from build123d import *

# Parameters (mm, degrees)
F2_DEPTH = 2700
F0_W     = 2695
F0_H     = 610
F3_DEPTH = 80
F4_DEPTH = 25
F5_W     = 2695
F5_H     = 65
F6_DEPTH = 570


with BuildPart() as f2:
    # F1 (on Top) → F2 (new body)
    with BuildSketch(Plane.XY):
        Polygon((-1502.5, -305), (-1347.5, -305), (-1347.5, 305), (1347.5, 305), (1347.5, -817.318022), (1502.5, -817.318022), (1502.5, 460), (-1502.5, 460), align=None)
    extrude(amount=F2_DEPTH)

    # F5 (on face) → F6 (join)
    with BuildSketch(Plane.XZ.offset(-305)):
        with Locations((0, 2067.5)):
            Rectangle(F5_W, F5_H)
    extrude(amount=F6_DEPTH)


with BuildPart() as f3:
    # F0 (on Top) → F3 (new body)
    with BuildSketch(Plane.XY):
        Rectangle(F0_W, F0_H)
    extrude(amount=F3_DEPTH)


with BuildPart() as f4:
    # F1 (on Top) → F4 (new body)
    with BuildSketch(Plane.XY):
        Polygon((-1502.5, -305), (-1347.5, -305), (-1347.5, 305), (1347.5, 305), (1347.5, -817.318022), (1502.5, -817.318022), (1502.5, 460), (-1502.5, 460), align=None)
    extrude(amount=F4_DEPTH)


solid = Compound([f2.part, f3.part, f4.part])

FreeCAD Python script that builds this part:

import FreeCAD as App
import Part
import Sketcher

V = App.Vector


def add_polygon(sketch, points):
    """Adds a closed chain of lines whose ends are joined by coincident constraints."""
    first, n = sketch.GeometryCount, len(points)
    for a, b in zip(points, points[1:] + points[:1]):
        sketch.addGeometry(Part.LineSegment(App.Vector(*a, 0), App.Vector(*b, 0)), False)
    for i in range(n):
        sketch.addConstraint(Sketcher.Constraint("Coincident", first + i, 2, first + (i + 1) % n, 1))

doc = App.newDocument("Part")
body = doc.addObject("PartDesign::Body", "Body")

sketch1 = body.newObject("Sketcher::SketchObject", "Sketch")
sketch1.AttachmentSupport = (doc.getObject("XY_Plane"), [""])
sketch1.MapMode = "FlatFace"
add_polygon(sketch1, [(-1502, -305), (-1348, -305), (-1348, 305), (1348, 305), (1348, -817), (1502, -817), (1502, 460), (-1502, 460)])
sketch1.addConstraint(Sketcher.Constraint("Horizontal", 0))
sketch1.addConstraint(Sketcher.Constraint("Vertical", 1))
sketch1.addConstraint(Sketcher.Constraint("Horizontal", 2))
sketch1.addConstraint(Sketcher.Constraint("Vertical", 3))
sketch1.addConstraint(Sketcher.Constraint("Horizontal", 4))
sketch1.addConstraint(Sketcher.Constraint("Vertical", 5))
sketch1.addConstraint(Sketcher.Constraint("Horizontal", 6))
sketch1.addConstraint(Sketcher.Constraint("Vertical", 7))
sketch1.addConstraint(Sketcher.Constraint("Symmetric", 0, 2, 2, 2, -1, 1))
sketch1.addConstraint(Sketcher.Constraint("Equal", 0, 4))
sketch1.addConstraint(Sketcher.Constraint("DistanceX", 0, 1, 0, 2, 155.0))
sketch1.addConstraint(Sketcher.Constraint("DistanceX", 2, 1, 2, 2, 2695.0))
sketch1.addConstraint(Sketcher.Constraint("DistanceY", 1, 1, 1, 2, 610.0))
sketch1.addConstraint(Sketcher.Constraint("DistanceY", 7, 2, 7, 1, 765.0))
sketch1.addConstraint(Sketcher.Constraint("DistanceY", 3, 2, 3, 1, 1122.318022))
pad1 = body.newObject("PartDesign::Pad", "Pad")
pad1.Profile = sketch1
pad1.Length = 2700

sketch2 = body.newObject("Sketcher::SketchObject", "Sketch001")
sketch2.AttachmentSupport = (doc.getObject("XZ_Plane"), [""])
sketch2.MapMode = "FlatFace"
sketch2.AttachmentOffset = App.Placement(V(0, 0, -305), App.Rotation())
add_polygon(sketch2, [(-1348, 2100), (-1348, 2035), (1348, 2035), (1348, 2100)])
sketch2.addConstraint(Sketcher.Constraint("Vertical", 0))
sketch2.addConstraint(Sketcher.Constraint("Horizontal", 1))
sketch2.addConstraint(Sketcher.Constraint("Vertical", 2))
sketch2.addConstraint(Sketcher.Constraint("Horizontal", 3))
sketch2.addConstraint(Sketcher.Constraint("DistanceX", 1, 1, 1, 2, 2695.0))
sketch2.addConstraint(Sketcher.Constraint("DistanceY", 0, 2, 0, 1, 65.0))
sketch2.addConstraint(Sketcher.Constraint("DistanceY", -1, 1, 0, 2, 2035.0))
sketch2.addConstraint(Sketcher.Constraint("DistanceX", 0, 2, -1, 1, 1347.5))
pad2 = body.newObject("PartDesign::Pad", "Pad001")
pad2.Profile = sketch2
pad2.Length = 570
body2 = doc.addObject("PartDesign::Body", "Body001")

sketch3 = body2.newObject("Sketcher::SketchObject", "Sketch002")
sketch3.AttachmentSupport = (doc.getObject("XY_Plane001"), [""])
sketch3.MapMode = "FlatFace"
add_polygon(sketch3, [(-1348, 305), (-1348, -305), (1348, -305), (1348, 305)])
sketch3.addConstraint(Sketcher.Constraint("Vertical", 0))
sketch3.addConstraint(Sketcher.Constraint("Horizontal", 1))
sketch3.addConstraint(Sketcher.Constraint("Vertical", 2))
sketch3.addConstraint(Sketcher.Constraint("Horizontal", 3))
sketch3.addConstraint(Sketcher.Constraint("Symmetric", 0, 2, 2, 2, -1, 1))
sketch3.addConstraint(Sketcher.Constraint("DistanceX", 1, 1, 1, 2, 2695.0))
sketch3.addConstraint(Sketcher.Constraint("DistanceY", 0, 2, 0, 1, 610.0))
pad3 = body2.newObject("PartDesign::Pad", "Pad002")
pad3.Profile = sketch3
pad3.Length = 80
body3 = doc.addObject("PartDesign::Body", "Body002")

sketch4 = body3.newObject("Sketcher::SketchObject", "Sketch003")
sketch4.AttachmentSupport = (doc.getObject("XY_Plane002"), [""])
sketch4.MapMode = "FlatFace"
add_polygon(sketch4, [(-1502, -305), (-1348, -305), (-1348, 305), (1348, 305), (1348, -817), (1502, -817), (1502, 460), (-1502, 460)])
sketch4.addConstraint(Sketcher.Constraint("Horizontal", 0))
sketch4.addConstraint(Sketcher.Constraint("Vertical", 1))
sketch4.addConstraint(Sketcher.Constraint("Horizontal", 2))
sketch4.addConstraint(Sketcher.Constraint("Vertical", 3))
sketch4.addConstraint(Sketcher.Constraint("Horizontal", 4))
sketch4.addConstraint(Sketcher.Constraint("Vertical", 5))
sketch4.addConstraint(Sketcher.Constraint("Horizontal", 6))
sketch4.addConstraint(Sketcher.Constraint("Vertical", 7))
sketch4.addConstraint(Sketcher.Constraint("Symmetric", 0, 2, 2, 2, -1, 1))
sketch4.addConstraint(Sketcher.Constraint("Equal", 0, 4))
sketch4.addConstraint(Sketcher.Constraint("DistanceX", 0, 1, 0, 2, 155.0))
sketch4.addConstraint(Sketcher.Constraint("DistanceX", 2, 1, 2, 2, 2695.0))
sketch4.addConstraint(Sketcher.Constraint("DistanceY", 1, 1, 1, 2, 610.0))
sketch4.addConstraint(Sketcher.Constraint("DistanceY", 7, 2, 7, 1, 765.0))
sketch4.addConstraint(Sketcher.Constraint("DistanceY", 3, 2, 3, 1, 1122.318022))
pad4 = body3.newObject("PartDesign::Pad", "Pad003")
pad4.Profile = sketch4
pad4.Length = 25

doc.recompute()
